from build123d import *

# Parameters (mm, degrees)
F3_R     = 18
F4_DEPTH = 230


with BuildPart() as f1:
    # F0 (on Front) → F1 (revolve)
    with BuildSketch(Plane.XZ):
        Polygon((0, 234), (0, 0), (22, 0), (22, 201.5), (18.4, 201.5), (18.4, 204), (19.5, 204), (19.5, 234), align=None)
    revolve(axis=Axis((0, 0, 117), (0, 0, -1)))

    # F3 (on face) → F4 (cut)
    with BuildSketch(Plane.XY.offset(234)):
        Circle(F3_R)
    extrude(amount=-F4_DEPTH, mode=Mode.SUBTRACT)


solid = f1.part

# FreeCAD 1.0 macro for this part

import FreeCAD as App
import Part
import Sketcher

doc = App.newDocument("Part")
body = doc.addObject("PartDesign::Body", "Body")

# Sketch on XZ plane
sketch1 = body.newObject("Sketcher::SketchObject", "Sketch")
sketch1.AttachmentSupport = (doc.getObject("XZ_Plane"), [""])
sketch1.MapMode = "FlatFace"
sketch1.addGeometry([
    Part.LineSegment(App.Vector(0, 234, 0), App.Vector(0, 0, 0)),  # 0
    Part.LineSegment(App.Vector(0, 0, 0), App.Vector(22, 0, 0)),  # 1
    Part.LineSegment(App.Vector(22, 0, 0), App.Vector(22, 201.5, 0)),  # 2
    Part.LineSegment(App.Vector(22, 201.5, 0), App.Vector(18.4, 201.5, 0)),  # 3
    Part.LineSegment(App.Vector(18.4, 201.5, 0), App.Vector(18.4, 204, 0)),  # 4
    Part.LineSegment(App.Vector(18.4, 204, 0), App.Vector(19.5, 204, 0)),  # 5
    Part.LineSegment(App.Vector(19.5, 204, 0), App.Vector(19.5, 234, 0)),  # 6
    Part.LineSegment(App.Vector(19.5, 234, 0), App.Vector(0, 234, 0)),  # 7
], False)
sketch1.addConstraint([
    Sketcher.Constraint("Coincident", 0, 2, 1, 1),
    Sketcher.Constraint("Coincident", 1, 2, 2, 1),
    Sketcher.Constraint("Coincident", 2, 2, 3, 1),
    Sketcher.Constraint("Coincident", 3, 2, 4, 1),
    Sketcher.Constraint("Coincident", 4, 2, 5, 1),
    Sketcher.Constraint("Coincident", 5, 2, 6, 1),
    Sketcher.Constraint("Coincident", 6, 2, 7, 1),
    Sketcher.Constraint("Coincident", 7, 2, 0, 1),
    Sketcher.Constraint("Vertical", 0),
    Sketcher.Constraint("Horizontal", 1),
    Sketcher.Constraint("Vertical", 2),
    Sketcher.Constraint("Horizontal", 3),
    Sketcher.Constraint("Vertical", 4),
    Sketcher.Constraint("Horizontal", 5),
    Sketcher.Constraint("Vertical", 6),
    Sketcher.Constraint("Horizontal", 7),
    Sketcher.Constraint("Coincident", 0, 2, -1, 1),
    Sketcher.Constraint("DistanceX", 1, 1, 1, 2, 22.0),
    Sketcher.Constraint("DistanceY", 0, 2, 0, 1, 234.0),
    Sketcher.Constraint("DistanceY", 6, 1, 6, 2, 30.0),
    Sketcher.Constraint("DistanceX", 3, 2, 3, 1, 3.6),
    Sketcher.Constraint("DistanceX", 5, 1, 5, 2, 1.1),
    Sketcher.Constraint("DistanceY", 2, 1, 2, 2, 201.5),
])
revolution = body.newObject("PartDesign::Revolution", "Revolution")
revolution.Profile = sketch1
revolution.ReferenceAxis = (sketch1, ["V_Axis"])
revolution.Angle = 360

# Sketch on XY plane
sketch2 = body.newObject("Sketcher::SketchObject", "Sketch001")
sketch2.AttachmentSupport = (doc.getObject("XY_Plane"), [""])
sketch2.MapMode = "FlatFace"
sketch2.AttachmentOffset = App.Placement(App.Vector(0, 0, 234), App.Rotation())
sketch2.addGeometry(Part.Circle(App.Vector(0, 0, 0), App.Vector(0, 0, 1), 18), False)
sketch2.addConstraint([
    Sketcher.Constraint("Coincident", 0, 3, -1, 1),
    Sketcher.Constraint("Diameter", 0, 36.0),
])
pocket1 = body.newObject("PartDesign::Pocket", "Pocket")
pocket1.Profile = sketch2
pocket1.Length = 230

doc.recompute()
